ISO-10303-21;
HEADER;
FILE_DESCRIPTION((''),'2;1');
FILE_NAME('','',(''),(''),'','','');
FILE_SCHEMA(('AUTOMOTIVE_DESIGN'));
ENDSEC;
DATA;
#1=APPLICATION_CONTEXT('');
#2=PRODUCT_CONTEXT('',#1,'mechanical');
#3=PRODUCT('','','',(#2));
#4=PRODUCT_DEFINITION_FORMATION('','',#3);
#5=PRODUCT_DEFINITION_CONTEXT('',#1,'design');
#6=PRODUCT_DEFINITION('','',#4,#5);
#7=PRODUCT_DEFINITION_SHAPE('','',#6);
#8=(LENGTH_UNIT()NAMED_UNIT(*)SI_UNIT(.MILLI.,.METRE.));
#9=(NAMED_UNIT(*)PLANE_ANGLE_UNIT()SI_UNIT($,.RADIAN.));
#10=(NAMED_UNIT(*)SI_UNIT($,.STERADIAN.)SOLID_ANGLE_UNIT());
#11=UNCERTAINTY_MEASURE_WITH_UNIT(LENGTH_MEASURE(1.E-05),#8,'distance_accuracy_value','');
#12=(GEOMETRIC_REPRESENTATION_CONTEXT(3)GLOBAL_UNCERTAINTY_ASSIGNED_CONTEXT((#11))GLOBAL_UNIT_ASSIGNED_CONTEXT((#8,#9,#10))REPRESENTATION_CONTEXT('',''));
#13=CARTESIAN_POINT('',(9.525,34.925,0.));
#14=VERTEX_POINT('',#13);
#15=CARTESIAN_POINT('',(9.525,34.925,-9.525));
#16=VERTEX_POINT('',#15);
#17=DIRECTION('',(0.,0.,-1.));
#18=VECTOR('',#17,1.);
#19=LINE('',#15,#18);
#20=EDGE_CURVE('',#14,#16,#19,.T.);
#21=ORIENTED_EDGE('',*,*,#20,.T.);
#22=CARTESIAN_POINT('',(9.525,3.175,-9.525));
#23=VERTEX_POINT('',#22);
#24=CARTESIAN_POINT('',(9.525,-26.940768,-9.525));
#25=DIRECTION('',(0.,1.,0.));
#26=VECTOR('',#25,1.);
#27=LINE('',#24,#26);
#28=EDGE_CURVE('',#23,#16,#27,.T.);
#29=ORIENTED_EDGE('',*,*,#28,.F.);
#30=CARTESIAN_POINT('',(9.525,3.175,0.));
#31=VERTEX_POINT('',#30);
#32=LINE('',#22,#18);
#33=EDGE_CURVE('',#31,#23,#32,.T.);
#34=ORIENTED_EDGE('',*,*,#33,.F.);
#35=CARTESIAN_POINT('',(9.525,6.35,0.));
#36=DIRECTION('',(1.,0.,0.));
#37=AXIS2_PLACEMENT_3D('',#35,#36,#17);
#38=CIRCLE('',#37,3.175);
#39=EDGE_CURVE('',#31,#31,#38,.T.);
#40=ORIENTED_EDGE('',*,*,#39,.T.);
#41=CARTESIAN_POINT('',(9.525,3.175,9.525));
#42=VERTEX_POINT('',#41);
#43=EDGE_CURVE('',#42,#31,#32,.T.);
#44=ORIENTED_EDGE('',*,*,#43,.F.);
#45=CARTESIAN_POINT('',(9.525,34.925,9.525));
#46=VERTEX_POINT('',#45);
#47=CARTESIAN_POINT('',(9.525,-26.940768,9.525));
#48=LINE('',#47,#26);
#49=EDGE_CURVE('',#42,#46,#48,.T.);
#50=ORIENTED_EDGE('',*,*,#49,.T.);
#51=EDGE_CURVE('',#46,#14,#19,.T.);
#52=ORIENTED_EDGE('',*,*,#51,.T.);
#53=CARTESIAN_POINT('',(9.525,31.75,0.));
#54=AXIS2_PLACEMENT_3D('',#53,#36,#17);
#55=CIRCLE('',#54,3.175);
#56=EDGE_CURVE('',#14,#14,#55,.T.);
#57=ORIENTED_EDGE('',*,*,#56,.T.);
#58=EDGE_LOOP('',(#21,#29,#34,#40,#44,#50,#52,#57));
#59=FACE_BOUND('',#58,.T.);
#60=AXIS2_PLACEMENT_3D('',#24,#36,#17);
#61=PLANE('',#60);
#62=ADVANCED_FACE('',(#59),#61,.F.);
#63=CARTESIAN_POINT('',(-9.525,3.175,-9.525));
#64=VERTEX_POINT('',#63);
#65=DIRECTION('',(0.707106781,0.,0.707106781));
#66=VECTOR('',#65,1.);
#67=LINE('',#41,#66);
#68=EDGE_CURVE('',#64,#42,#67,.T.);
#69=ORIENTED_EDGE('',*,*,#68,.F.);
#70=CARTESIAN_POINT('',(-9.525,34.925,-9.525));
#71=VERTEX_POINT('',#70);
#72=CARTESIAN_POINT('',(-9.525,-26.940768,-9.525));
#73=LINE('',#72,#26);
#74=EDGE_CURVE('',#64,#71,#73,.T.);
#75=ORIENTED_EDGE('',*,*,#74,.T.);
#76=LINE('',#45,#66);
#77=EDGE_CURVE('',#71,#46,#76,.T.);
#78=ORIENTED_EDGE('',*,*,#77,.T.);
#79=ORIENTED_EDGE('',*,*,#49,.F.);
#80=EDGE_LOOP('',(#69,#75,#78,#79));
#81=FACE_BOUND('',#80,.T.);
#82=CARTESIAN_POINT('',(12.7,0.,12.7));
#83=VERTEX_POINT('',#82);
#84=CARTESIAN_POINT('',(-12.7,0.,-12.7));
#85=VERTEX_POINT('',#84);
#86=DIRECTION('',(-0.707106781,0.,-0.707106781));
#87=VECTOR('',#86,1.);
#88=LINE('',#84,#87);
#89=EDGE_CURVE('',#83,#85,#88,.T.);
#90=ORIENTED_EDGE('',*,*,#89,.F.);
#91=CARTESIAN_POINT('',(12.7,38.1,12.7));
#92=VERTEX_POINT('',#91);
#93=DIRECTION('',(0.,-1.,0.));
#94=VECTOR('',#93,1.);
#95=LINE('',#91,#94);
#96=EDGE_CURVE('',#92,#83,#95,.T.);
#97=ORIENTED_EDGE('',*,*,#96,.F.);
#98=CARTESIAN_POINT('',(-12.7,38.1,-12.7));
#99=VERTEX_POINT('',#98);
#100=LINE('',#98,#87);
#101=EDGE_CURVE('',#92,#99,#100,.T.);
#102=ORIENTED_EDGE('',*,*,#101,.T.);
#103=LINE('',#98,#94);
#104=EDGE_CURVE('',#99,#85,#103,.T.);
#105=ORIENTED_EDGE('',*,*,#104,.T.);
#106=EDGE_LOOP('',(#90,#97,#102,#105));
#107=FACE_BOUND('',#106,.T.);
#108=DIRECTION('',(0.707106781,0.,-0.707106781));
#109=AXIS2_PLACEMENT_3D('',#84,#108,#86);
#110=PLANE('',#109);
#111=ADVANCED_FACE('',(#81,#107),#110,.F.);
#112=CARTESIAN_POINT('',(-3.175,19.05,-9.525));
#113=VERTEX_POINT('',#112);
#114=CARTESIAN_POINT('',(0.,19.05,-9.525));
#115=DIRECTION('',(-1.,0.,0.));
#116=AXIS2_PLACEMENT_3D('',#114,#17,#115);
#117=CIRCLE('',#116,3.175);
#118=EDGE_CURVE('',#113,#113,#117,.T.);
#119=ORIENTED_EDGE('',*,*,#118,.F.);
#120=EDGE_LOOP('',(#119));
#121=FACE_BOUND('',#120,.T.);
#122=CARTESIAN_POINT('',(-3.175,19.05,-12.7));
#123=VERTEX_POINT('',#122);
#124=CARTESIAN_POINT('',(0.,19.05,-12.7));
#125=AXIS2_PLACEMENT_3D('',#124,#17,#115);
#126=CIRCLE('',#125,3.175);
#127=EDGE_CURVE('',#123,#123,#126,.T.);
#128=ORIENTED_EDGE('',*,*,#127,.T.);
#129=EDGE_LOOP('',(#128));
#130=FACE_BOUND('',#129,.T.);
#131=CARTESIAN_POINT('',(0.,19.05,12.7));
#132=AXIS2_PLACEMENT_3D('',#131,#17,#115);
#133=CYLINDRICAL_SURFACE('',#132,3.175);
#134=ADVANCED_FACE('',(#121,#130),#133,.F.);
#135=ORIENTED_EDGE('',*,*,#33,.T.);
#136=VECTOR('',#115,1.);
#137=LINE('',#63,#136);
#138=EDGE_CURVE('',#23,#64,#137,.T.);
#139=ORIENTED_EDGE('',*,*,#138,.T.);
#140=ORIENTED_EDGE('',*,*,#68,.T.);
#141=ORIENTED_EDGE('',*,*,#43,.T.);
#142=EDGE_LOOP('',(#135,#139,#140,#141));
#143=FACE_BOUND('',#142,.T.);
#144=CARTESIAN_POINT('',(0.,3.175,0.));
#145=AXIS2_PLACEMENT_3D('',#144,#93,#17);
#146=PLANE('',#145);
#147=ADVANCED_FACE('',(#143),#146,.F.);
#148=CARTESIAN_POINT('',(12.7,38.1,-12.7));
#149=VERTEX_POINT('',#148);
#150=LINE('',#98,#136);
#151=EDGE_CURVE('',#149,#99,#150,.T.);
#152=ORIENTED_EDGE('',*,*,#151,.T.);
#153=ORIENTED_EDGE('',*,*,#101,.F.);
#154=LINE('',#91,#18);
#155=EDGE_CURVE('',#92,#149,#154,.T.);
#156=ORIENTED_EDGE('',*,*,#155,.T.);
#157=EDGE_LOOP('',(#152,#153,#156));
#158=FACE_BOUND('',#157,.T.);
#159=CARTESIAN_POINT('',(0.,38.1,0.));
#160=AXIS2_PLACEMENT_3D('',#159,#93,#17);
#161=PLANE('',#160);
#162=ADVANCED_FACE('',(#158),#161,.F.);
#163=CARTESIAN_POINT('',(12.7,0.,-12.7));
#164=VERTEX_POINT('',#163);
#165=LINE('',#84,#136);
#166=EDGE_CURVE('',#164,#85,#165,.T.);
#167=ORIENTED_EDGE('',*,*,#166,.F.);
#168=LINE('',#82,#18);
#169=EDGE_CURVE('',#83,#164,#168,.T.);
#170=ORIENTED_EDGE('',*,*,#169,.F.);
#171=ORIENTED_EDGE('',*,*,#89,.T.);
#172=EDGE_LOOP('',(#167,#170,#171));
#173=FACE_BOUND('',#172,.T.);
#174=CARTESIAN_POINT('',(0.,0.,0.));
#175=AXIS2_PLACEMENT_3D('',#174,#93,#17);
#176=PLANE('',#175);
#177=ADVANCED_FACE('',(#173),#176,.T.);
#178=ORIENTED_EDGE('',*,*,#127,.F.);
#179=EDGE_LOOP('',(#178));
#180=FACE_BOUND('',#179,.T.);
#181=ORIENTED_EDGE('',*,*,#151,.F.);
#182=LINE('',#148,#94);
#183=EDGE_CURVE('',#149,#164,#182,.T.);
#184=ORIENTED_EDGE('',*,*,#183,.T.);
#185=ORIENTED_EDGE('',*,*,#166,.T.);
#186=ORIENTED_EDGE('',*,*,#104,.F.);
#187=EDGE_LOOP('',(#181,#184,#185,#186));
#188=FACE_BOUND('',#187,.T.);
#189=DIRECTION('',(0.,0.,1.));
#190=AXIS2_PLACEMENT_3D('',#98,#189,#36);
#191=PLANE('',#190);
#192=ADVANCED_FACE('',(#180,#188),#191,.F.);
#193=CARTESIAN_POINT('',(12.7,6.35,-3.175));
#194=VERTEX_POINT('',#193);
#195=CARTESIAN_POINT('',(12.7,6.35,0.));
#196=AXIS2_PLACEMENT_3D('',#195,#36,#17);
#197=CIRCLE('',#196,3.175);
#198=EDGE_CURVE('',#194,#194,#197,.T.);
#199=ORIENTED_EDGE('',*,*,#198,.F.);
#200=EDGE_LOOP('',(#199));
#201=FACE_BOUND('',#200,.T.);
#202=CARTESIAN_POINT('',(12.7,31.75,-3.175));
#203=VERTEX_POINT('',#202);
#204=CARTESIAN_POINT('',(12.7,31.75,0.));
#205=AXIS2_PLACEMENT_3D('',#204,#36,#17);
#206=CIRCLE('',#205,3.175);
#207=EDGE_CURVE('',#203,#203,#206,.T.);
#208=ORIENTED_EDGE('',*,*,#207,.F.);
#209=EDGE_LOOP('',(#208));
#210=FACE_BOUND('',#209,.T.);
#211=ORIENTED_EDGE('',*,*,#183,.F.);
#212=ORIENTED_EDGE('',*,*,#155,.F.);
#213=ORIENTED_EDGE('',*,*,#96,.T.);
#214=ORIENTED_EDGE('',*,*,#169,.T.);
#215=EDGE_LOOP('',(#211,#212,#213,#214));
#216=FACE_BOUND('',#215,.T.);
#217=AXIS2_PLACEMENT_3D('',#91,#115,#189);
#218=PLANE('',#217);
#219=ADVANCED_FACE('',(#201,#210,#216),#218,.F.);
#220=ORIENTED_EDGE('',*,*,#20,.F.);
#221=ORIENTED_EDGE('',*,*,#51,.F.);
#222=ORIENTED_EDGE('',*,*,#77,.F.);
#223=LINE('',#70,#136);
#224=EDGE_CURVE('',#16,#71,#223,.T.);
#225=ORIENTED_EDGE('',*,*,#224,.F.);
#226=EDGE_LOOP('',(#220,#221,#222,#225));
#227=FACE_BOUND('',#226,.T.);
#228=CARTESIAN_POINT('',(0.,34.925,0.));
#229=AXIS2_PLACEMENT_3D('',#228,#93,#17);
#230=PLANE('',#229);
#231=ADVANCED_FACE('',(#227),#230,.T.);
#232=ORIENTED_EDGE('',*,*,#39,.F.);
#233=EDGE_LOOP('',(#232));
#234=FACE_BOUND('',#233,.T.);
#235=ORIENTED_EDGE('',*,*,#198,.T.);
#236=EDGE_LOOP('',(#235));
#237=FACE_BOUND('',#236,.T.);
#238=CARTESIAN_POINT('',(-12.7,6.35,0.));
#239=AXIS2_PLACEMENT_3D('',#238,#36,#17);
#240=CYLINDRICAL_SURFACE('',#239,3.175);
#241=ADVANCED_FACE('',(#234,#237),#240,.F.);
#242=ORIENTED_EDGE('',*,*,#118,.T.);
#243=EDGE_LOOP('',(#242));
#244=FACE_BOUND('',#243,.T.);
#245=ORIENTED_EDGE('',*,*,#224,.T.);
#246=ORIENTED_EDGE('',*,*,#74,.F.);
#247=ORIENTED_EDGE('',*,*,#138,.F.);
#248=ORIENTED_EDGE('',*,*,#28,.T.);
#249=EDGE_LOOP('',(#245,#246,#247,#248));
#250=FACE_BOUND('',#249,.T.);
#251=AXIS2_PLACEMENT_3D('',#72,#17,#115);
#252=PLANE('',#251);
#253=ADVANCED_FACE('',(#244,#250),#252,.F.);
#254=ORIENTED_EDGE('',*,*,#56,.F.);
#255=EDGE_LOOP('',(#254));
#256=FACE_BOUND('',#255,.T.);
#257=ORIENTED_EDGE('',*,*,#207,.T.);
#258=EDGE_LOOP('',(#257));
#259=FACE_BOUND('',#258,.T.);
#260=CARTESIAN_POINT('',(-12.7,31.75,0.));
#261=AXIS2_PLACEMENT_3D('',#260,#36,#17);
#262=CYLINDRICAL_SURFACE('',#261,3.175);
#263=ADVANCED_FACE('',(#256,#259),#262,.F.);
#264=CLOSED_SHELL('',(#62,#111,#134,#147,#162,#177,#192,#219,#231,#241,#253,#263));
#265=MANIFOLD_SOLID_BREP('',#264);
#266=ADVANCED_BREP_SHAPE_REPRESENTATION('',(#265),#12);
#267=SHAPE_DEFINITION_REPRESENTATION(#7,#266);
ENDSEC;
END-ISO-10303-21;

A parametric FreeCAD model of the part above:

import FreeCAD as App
import Part
import Sketcher

V = App.Vector
Q = App.Units.Quantity


def add_polygon(sketch, points):
    """Adds a closed chain of lines whose ends are joined by coincident constraints."""
    first, n = sketch.GeometryCount, len(points)
    for a, b in zip(points, points[1:] + points[:1]):
        sketch.addGeometry(Part.LineSegment(App.Vector(*a, 0), App.Vector(*b, 0)), False)
    for i in range(n):
        sketch.addConstraint(Sketcher.Constraint("Coincident", first + i, 2, first + (i + 1) % n, 1))

doc = App.newDocument("Part")
body = doc.addObject("PartDesign::Body", "Body")

sketch1 = doc.addObject("Sketcher::SketchObject", "Sketch")
body.addObject(sketch1)
sketch1.AttachmentSupport = (doc.XZ_Plane, [""])
sketch1.MapMode = "FlatFace"
add_polygon(sketch1, [(-12.7, -12.7), (-12.7, 12.7), (12.7, 12.7), (12.7, -12.7)])
sketch1.addConstraint([
    Sketcher.Constraint("Vertical", 0),
    Sketcher.Constraint("Horizontal", 1),
    Sketcher.Constraint("Vertical", 2),
    Sketcher.Constraint("Horizontal", 3),
    Sketcher.Constraint("Symmetric", 0, 2, 2, 2, -1, 1),
    Sketcher.Constraint("Equal", 3, 0),
    Sketcher.Constraint("DistanceX", 1, 1, 1, 2, Q("1 in")),
])
pad1 = doc.addObject("PartDesign::Pad", "Pad")
body.addObject(pad1)
pad1.Profile = sketch1
pad1.Length = Q("1.5 in")
pad1.Reversed = True

sketch2 = doc.addObject("Sketcher::SketchObject", "Sketch001")
body.addObject(sketch2)
sketch2.AttachmentSupport = (doc.XZ_Plane, [""])
sketch2.MapMode = "FlatFace"
sketch2.AttachmentOffset = App.Placement(V(0, 0, -1.5 * 25.4), App.Rotation())
add_polygon(sketch2, [(12.7, 12.7), (-12.7, -12.7), (-12.7, 12.7)])
sketch2.addConstraint([
    Sketcher.Constraint("Vertical", 1),
    Sketcher.Constraint("Horizontal", 2),
    Sketcher.Constraint("Symmetric", 0, 2, 2, 2, -1, 1),
    Sketcher.Constraint("Equal", 2, 1),
    Sketcher.Constraint("DistanceX", 2, 1, 2, 2, Q("1 in")),
])
pocket1 = doc.addObject("PartDesign::Pocket", "Pocket")
body.addObject(pocket1)
pocket1.Profile = sketch2
pocket1.Type = "ThroughAll"
pocket1.Reversed = True

sketch3 = doc.addObject("Sketcher::SketchObject", "Sketch002")
body.addObject(sketch3)
sketch3.AttachmentSupport = (doc.XZ_Plane, [""])
sketch3.MapMode = "FlatFace"
sketch3.AttachmentOffset = App.Placement(V(0, 0, -1.375 * 25.4), App.Rotation())
add_polygon(sketch3, [(9.525, -9.525), (-9.525, -9.525), (9.525, 9.525)])
sketch3.addConstraint([
    Sketcher.Constraint("Horizontal", 0),
    Sketcher.Constraint("Vertical", 2),
    Sketcher.Constraint("Symmetric", 0, 2, 1, 2, -1, 1),
    Sketcher.Constraint("Equal", 0, 2),
    Sketcher.Constraint("DistanceX", 0, 2, 0, 1, Q("0.75 in")),
])
pocket2 = doc.addObject("PartDesign::Pocket", "Pocket001")
body.addObject(pocket2)
pocket2.Profile = sketch3
pocket2.Length = Q("1.25 in")
pocket2.Reversed = True

sketch4 = doc.addObject("Sketcher::SketchObject", "Sketch003")
body.addObject(sketch4)
sketch4.AttachmentSupport = (doc.XY_Plane, [""])
sketch4.MapMode = "FlatFace"
sketch4.AttachmentOffset = App.Placement(V(0, 0, -0.5 * 25.4), App.Rotation())
sketch4.addGeometry(Part.Circle(V(0, 19.05, 0), V(0, 0, 1), 3.175), False)
sketch4.addConstraint([
    Sketcher.Constraint("PointOnObject", 0, 3, -2),
    Sketcher.Constraint("Diameter", 0, Q("0.25 in")),
    Sketcher.Constraint("DistanceY", -1, 1, 0, 3, Q("0.75 in")),
])
pocket3 = doc.addObject("PartDesign::Pocket", "Pocket002")
body.addObject(pocket3)
pocket3.Profile = sketch4
pocket3.Type = "ThroughAll"
pocket3.Reversed = True

sketch5 = doc.addObject("Sketcher::SketchObject", "Sketch004")
body.addObject(sketch5)
sketch5.AttachmentSupport = (doc.YZ_Plane, [""])
sketch5.MapMode = "FlatFace"
sketch5.AttachmentOffset = App.Placement(V(0, 0, 0.5 * 25.4), App.Rotation())
sketch5.addGeometry([
    Part.Circle(V(31.75, 0, 0), V(0, 0, 1), 3.175),
    Part.Circle(V(6.35, 0, 0), V(0, 0, 1), 3.175),
], False)
sketch5.addConstraint([
    Sketcher.Constraint("Equal", 0, 1),
    Sketcher.Constraint("PointOnObject", 0, 3, -1),
    Sketcher.Constraint("PointOnObject", 1, 3, -1),
    Sketcher.Constraint("Diameter", 0, Q("0.25 in")),
    Sketcher.Constraint("DistanceX", 1, 3, 0, 3, Q("1 in")),
    Sketcher.Constraint("DistanceX", -1, 1, 0, 3, Q("1.25 in")),
])
pocket4 = doc.addObject("PartDesign::Pocket", "Pocket003")
body.addObject(pocket4)
pocket4.Profile = sketch5
pocket4.Type = "ThroughAll"

doc.recompute()
